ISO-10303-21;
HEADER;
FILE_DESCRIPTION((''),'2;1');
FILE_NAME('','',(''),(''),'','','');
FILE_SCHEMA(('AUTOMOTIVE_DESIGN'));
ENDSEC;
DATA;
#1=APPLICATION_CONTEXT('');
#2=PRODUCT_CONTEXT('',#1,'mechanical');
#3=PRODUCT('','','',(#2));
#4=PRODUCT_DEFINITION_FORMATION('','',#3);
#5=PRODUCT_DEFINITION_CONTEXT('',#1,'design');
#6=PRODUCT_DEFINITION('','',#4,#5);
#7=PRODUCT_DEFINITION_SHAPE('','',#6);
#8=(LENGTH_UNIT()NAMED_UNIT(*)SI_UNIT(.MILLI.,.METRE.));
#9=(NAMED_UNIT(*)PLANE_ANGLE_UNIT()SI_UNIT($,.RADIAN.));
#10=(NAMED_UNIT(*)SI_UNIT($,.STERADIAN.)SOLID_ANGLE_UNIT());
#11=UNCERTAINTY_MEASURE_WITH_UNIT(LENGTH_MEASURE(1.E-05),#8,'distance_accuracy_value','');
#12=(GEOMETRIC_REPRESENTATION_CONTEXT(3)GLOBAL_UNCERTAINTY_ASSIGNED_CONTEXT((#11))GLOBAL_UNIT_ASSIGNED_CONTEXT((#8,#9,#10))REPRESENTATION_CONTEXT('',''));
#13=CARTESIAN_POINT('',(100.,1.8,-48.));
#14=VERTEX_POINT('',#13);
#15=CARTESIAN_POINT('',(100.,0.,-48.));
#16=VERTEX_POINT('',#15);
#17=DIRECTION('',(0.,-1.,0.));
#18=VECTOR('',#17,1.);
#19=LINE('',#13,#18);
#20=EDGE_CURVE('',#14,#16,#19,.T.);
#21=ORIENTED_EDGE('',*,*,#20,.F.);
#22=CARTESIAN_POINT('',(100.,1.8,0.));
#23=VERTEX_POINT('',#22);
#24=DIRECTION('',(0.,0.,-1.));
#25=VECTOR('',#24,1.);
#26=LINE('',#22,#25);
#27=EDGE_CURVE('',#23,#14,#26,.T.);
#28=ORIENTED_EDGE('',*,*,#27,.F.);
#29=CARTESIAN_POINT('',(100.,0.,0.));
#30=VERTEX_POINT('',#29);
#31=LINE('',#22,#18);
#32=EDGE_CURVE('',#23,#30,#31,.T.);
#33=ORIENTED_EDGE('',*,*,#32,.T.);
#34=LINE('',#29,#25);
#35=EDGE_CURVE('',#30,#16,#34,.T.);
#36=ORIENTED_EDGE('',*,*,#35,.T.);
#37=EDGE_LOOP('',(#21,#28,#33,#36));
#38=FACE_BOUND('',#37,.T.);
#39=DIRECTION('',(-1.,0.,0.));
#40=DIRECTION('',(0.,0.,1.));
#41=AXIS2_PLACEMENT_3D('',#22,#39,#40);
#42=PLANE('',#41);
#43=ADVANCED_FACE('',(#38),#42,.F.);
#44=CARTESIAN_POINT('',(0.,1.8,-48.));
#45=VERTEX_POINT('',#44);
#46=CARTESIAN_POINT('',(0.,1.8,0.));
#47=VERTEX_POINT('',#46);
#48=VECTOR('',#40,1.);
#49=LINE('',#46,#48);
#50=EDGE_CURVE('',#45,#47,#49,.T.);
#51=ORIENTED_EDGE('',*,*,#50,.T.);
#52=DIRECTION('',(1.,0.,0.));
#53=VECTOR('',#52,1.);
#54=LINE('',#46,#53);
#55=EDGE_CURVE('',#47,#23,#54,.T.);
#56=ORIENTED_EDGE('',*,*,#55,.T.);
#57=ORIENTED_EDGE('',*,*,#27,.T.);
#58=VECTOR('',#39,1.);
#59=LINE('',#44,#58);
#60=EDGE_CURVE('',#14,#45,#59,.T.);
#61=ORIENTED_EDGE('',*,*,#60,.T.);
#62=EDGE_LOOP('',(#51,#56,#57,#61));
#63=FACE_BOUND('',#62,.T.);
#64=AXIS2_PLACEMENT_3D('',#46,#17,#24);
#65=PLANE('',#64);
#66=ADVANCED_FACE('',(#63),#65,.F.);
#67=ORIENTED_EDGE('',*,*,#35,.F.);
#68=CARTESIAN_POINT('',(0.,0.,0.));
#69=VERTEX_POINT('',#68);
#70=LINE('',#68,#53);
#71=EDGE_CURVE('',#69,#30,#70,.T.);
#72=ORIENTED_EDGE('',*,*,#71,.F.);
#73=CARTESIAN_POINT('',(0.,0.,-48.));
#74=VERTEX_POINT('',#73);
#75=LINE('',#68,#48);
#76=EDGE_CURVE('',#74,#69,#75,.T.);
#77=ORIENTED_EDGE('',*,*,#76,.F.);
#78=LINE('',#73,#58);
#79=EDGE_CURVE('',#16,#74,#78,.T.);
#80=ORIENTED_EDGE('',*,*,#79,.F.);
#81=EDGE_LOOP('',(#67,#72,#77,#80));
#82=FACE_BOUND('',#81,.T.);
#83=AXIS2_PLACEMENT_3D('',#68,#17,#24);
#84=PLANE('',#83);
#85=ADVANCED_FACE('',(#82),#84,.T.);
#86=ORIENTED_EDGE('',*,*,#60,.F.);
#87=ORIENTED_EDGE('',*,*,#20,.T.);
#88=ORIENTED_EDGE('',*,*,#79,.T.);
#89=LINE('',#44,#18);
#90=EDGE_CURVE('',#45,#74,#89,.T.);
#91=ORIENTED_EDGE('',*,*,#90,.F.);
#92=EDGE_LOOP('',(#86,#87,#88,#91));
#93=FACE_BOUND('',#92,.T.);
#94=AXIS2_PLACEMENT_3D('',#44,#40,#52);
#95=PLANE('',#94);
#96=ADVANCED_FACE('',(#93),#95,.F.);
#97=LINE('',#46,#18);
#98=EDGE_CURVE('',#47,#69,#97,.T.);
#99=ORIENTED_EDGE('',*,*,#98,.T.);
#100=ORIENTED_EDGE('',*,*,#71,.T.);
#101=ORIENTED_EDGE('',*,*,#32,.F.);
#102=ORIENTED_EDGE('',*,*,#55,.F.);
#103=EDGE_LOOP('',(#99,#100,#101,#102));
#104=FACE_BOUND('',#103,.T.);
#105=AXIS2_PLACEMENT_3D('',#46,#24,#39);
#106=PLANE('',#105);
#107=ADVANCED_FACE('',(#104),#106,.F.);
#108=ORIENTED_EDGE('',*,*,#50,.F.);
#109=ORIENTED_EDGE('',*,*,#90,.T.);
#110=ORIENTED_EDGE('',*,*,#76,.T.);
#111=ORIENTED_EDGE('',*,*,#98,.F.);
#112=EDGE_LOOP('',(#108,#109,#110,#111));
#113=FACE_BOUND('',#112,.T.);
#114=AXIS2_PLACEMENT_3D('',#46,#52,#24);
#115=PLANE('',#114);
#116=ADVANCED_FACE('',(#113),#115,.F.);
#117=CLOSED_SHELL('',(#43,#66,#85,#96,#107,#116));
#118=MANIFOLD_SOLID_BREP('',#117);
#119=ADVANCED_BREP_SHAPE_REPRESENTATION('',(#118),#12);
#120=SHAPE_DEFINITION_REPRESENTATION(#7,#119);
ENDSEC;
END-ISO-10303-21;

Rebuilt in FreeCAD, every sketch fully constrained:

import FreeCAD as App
import Part
import Sketcher


def add_polygon(sketch, points):
    """Adds a closed chain of lines whose ends are joined by coincident constraints."""
    first, n = sketch.GeometryCount, len(points)
    for a, b in zip(points, points[1:] + points[:1]):
        sketch.addGeometry(Part.LineSegment(App.Vector(*a, 0), App.Vector(*b, 0)), False)
    for i in range(n):
        sketch.addConstraint(Sketcher.Constraint("Coincident", first + i, 2, first + (i + 1) % n, 1))

doc = App.newDocument("Part")
body = doc.addObject("PartDesign::Body", "Body")

# Sketch on XZ plane
sketch1 = doc.addObject("Sketcher::SketchObject", "Sketch")
body.addObject(sketch1)
sketch1.AttachmentSupport = (doc.XZ_Plane, [""])
sketch1.MapMode = "FlatFace"
add_polygon(sketch1, [(0, -48), (0, 0), (100, 0), (100, -48)])  # lines 0-3
sketch1.addConstraint([
    Sketcher.Constraint("Vertical", 0),
    Sketcher.Constraint("Horizontal", 1),
    Sketcher.Constraint("Vertical", 2),
    Sketcher.Constraint("Horizontal", 3),
    Sketcher.Constraint("Coincident", 0, 2, -1, 1),
    Sketcher.Constraint("DistanceX", 1, 1, 1, 2, 100.0),
    Sketcher.Constraint("DistanceY", 0, 1, 0, 2, 48.0),
])
pad1 = doc.addObject("PartDesign::Pad", "Pad")
body.addObject(pad1)
pad1.Profile = sketch1
pad1.Length = 1.8
pad1.Reversed = True

doc.recompute()
